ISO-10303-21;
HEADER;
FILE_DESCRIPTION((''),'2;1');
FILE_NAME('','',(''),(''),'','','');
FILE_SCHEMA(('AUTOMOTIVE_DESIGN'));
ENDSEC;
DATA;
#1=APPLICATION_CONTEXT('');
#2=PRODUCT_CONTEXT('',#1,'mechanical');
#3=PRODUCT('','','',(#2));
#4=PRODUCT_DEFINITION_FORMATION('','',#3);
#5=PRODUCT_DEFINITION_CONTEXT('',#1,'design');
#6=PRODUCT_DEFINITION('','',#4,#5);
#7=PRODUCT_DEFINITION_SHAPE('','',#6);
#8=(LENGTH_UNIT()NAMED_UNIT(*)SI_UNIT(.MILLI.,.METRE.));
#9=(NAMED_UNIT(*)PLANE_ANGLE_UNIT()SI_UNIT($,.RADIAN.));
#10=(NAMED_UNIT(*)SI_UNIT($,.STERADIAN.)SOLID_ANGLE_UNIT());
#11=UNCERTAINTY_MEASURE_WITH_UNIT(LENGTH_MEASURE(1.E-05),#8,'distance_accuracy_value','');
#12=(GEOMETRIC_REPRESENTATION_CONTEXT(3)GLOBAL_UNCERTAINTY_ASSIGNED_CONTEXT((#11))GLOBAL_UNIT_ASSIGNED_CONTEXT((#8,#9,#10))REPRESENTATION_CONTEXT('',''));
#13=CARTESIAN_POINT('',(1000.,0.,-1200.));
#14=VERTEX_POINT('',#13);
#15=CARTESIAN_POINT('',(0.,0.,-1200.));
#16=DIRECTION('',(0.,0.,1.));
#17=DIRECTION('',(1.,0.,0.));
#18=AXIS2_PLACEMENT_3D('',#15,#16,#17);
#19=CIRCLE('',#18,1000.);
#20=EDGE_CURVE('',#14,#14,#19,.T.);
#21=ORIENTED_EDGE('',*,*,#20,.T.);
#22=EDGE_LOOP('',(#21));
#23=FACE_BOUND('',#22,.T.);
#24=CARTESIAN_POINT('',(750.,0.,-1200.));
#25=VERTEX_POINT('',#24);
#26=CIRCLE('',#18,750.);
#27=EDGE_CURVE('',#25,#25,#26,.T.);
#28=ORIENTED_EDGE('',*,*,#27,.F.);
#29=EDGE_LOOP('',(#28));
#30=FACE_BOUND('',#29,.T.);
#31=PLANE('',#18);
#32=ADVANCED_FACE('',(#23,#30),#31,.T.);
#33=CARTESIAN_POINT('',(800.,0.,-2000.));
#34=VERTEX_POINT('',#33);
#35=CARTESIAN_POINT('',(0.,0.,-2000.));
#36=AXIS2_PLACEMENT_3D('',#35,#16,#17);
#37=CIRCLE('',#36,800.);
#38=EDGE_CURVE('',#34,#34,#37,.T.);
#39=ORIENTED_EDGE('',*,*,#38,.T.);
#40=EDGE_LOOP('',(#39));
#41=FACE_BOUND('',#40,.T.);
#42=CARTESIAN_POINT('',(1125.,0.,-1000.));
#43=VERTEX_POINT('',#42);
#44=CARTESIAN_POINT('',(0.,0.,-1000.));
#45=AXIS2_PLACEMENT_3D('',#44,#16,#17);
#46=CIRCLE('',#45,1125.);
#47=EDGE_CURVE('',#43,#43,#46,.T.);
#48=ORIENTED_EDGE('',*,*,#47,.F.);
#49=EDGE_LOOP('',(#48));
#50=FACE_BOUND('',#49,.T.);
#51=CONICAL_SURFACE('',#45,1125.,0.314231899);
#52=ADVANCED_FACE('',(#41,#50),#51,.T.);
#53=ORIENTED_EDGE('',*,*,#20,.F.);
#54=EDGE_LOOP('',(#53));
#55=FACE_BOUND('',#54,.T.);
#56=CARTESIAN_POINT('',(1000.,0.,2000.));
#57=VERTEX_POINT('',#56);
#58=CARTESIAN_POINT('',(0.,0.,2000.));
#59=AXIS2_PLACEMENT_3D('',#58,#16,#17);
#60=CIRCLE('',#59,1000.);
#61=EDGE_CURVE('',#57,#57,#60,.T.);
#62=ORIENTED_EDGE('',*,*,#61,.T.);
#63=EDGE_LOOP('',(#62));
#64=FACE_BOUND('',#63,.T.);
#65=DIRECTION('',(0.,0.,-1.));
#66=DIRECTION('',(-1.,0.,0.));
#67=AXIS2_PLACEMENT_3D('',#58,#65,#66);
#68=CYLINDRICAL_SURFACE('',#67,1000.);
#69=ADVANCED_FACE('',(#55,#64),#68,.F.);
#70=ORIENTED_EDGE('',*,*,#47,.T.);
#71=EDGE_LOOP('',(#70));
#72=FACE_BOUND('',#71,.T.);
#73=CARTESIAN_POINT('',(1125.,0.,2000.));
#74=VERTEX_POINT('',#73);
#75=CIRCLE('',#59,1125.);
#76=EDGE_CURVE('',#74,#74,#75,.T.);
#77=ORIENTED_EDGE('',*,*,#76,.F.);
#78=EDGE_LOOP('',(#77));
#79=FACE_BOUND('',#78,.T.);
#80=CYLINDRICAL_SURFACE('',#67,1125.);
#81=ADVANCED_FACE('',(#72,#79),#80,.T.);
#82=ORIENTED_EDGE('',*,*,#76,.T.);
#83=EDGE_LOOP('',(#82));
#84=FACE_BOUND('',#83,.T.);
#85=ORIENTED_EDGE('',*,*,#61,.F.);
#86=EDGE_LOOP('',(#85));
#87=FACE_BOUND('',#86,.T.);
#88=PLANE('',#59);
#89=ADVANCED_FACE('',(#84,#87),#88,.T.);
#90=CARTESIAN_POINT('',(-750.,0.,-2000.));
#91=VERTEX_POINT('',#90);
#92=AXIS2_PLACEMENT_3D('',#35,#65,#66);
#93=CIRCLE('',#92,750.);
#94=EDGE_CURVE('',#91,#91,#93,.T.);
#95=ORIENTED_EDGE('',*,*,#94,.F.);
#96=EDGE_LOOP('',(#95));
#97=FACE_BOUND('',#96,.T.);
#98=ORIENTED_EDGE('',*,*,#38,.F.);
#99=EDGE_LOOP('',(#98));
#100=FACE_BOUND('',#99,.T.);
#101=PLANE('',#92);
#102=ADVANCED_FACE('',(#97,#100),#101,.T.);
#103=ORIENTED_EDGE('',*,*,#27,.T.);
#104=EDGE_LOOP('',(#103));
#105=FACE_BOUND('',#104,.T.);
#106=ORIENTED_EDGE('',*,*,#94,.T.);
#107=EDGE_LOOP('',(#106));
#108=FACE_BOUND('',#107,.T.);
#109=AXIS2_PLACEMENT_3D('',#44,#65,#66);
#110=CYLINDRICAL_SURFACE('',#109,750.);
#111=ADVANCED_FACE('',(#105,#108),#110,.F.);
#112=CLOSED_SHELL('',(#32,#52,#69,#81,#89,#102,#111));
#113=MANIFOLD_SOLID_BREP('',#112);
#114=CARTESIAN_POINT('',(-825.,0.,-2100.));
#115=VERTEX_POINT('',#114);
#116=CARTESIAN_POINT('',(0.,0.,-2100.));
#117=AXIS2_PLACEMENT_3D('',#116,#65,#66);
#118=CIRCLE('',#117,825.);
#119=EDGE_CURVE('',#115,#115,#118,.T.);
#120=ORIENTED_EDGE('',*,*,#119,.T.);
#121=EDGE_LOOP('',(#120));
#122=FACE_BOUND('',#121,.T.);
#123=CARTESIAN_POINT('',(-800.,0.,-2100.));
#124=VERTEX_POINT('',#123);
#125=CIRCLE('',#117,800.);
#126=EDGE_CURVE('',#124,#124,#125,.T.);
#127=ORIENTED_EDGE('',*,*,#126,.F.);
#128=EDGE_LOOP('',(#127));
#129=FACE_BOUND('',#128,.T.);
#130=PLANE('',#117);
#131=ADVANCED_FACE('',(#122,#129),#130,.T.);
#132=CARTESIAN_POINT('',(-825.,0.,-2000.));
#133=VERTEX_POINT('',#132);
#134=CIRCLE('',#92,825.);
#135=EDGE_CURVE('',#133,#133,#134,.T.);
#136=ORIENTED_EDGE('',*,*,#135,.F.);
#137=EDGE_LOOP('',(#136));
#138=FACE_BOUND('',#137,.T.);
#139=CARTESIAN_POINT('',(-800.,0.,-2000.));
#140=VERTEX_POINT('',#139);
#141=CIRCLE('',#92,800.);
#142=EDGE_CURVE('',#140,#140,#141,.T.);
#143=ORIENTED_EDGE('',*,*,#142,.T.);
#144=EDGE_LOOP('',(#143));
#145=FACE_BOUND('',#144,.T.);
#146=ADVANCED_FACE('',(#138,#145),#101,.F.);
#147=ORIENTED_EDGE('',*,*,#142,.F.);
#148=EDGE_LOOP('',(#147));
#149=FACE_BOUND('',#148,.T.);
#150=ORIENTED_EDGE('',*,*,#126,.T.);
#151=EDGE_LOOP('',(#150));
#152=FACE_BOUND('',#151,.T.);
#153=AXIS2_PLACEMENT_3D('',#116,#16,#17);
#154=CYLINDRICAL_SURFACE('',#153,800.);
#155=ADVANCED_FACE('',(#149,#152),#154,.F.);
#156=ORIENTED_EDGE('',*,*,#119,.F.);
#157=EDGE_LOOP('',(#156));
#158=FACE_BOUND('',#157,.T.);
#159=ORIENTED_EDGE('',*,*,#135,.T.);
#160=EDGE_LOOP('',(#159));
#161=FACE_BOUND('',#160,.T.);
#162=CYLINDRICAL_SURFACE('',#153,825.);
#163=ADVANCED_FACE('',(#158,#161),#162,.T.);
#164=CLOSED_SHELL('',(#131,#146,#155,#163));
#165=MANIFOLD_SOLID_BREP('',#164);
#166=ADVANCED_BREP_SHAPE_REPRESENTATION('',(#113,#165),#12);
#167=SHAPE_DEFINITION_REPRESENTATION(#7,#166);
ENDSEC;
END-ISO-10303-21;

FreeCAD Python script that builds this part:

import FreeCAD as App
import Part
import Sketcher


def add_polygon(sketch, points):
    """Adds a closed chain of lines whose ends are joined by coincident constraints."""
    first, n = sketch.GeometryCount, len(points)
    for a, b in zip(points, points[1:] + points[:1]):
        sketch.addGeometry(Part.LineSegment(App.Vector(*a, 0), App.Vector(*b, 0)), False)
    for i in range(n):
        sketch.addConstraint(Sketcher.Constraint("Coincident", first + i, 2, first + (i + 1) % n, 1))

doc = App.newDocument("Part")
body = doc.addObject("PartDesign::Body", "Body")

sketch1 = body.newObject("Sketcher::SketchObject", "Sketch")
sketch1.AttachmentSupport = (doc.getObject("XY_Plane"), [""])
sketch1.MapMode = "FlatFace"
sketch1.addGeometry([
    Part.Circle(App.Vector(0, 0, 0), App.Vector(0, 0, 1), 1125),
    Part.Circle(App.Vector(0, 0, 0), App.Vector(0, 0, 1), 1000),
], False)
sketch1.addConstraint([
    Sketcher.Constraint("Coincident", 0, 3, -1, 1),
    Sketcher.Constraint("Coincident", 1, 3, -1, 1),
    Sketcher.Constraint("Diameter", 0, 2250.0),
    Sketcher.Constraint("Diameter", 1, 2000.0),
])
pad1 = body.newObject("PartDesign::Pad", "Pad")
pad1.Profile = sketch1
pad1.Length = 2000

sketch2 = body.newObject("Sketcher::SketchObject", "Sketch001")
sketch2.AttachmentSupport = (doc.getObject("YZ_Plane"), [""])
sketch2.MapMode = "FlatFace"
add_polygon(sketch2, [(0, -2000), (0, 0), (-1125, 0), (-1125, -1000), (-800, -2000)])
sketch2.addConstraint([
    Sketcher.Constraint("Vertical", 0),
    Sketcher.Constraint("Horizontal", 1),
    Sketcher.Constraint("Vertical", 2),
    Sketcher.Constraint("Horizontal", 4),
    Sketcher.Constraint("Coincident", 0, 2, -1, 1),
    Sketcher.Constraint("DistanceX", 1, 2, 1, 1, 1125.0),
    Sketcher.Constraint("DistanceX", 4, 1, 4, 2, 800.0),
    Sketcher.Constraint("DistanceY", 0, 1, 0, 2, 2000.0),
    Sketcher.Constraint("DistanceY", 2, 2, 2, 1, 1000.0),
])
revolution = body.newObject("PartDesign::Revolution", "Revolution")
revolution.Profile = sketch2
revolution.ReferenceAxis = (sketch2, ["V_Axis"])
revolution.Angle = 360

sketch3 = body.newObject("Sketcher::SketchObject", "Sketch002")
sketch3.AttachmentSupport = (doc.getObject("XY_Plane"), [""])
sketch3.MapMode = "FlatFace"
sketch3.AttachmentOffset = App.Placement(App.Vector(0, 0, -1200), App.Rotation())
sketch3.addGeometry(Part.Circle(App.Vector(0, 0, 0), App.Vector(0, 0, 1), 1000), False)
sketch3.addConstraint([
    Sketcher.Constraint("Coincident", 0, 3, -1, 1),
    Sketcher.Constraint("Diameter", 0, 2000.0),
])
pocket1 = body.newObject("PartDesign::Pocket", "Pocket")
pocket1.Profile = sketch3
pocket1.Length = 1200
pocket1.Reversed = True

sketch4 = body.newObject("Sketcher::SketchObject", "Sketch003")
sketch4.AttachmentSupport = (doc.getObject("XY_Plane"), [""])
sketch4.MapMode = "FlatFace"
sketch4.AttachmentOffset = App.Placement(App.Vector(0, 0, -2000), App.Rotation())
sketch4.addGeometry(Part.Circle(App.Vector(0, 0, 0), App.Vector(0, 0, 1), 750), False)
sketch4.addConstraint([
    Sketcher.Constraint("Coincident", 0, 3, -1, 1),
    Sketcher.Constraint("Diameter", 0, 1500.0),
])
pocket2 = body.newObject("PartDesign::Pocket", "Pocket001")
pocket2.Profile = sketch4
pocket2.Length = 1000
pocket2.Reversed = True
body2 = doc.addObject("PartDesign::Body", "Body001")

sketch5 = body2.newObject("Sketcher::SketchObject", "Sketch004")
sketch5.AttachmentSupport = (doc.getObject("XY_Plane001"), [""])
sketch5.MapMode = "FlatFace"
sketch5.AttachmentOffset = App.Placement(App.Vector(0, 0, -2000), App.Rotation())
sketch5.addGeometry([
    Part.Circle(App.Vector(0, 0, 0), App.Vector(0, 0, 1), 825),
    Part.Circle(App.Vector(0, 0, 0), App.Vector(0, 0, 1), 800),
], False)
sketch5.addConstraint([
    Sketcher.Constraint("Coincident", 0, 3, -1, 1),
    Sketcher.Constraint("Coincident", 1, 3, -1, 1),
    Sketcher.Constraint("Diameter", 0, 1650.0),
    Sketcher.Constraint("Diameter", 1, 1600.0),
])
pad2 = body2.newObject("PartDesign::Pad", "Pad001")
pad2.Profile = sketch5
pad2.Length = 100
pad2.Reversed = True

doc.recompute()
